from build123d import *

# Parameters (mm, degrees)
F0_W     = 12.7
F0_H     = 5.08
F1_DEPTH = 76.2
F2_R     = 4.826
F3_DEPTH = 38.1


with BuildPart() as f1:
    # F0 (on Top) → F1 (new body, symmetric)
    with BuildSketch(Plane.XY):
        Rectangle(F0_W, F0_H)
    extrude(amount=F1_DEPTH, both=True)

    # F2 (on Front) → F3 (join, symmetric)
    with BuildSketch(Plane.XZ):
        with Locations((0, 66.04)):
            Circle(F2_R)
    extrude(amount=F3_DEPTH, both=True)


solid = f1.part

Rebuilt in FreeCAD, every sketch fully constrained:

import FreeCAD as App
import Part
import Sketcher
Q = App.Units.Quantity

doc = App.newDocument("Part")
body = doc.addObject("PartDesign::Body", "Body")

# Sketch on XY plane
sketch1 = doc.addObject("Sketcher::SketchObject", "Sketch")
body.addObject(sketch1)
sketch1.AttachmentSupport = (doc.XY_Plane, [""])
sketch1.MapMode = "FlatFace"
sketch1.addGeometry(Part.LineSegment(App.Vector(-6.35, 2.54, 0), App.Vector(-6.35, -2.54, 0)), False)
sketch1.addGeometry(Part.LineSegment(App.Vector(-6.35, -2.54, 0), App.Vector(6.35, -2.54, 0)), False)
sketch1.addGeometry(Part.LineSegment(App.Vector(6.35, -2.54, 0), App.Vector(6.35, 2.54, 0)), False)
sketch1.addGeometry(Part.LineSegment(App.Vector(6.35, 2.54, 0), App.Vector(-6.35, 2.54, 0)), False)
sketch1.addConstraint(Sketcher.Constraint("Coincident", 0, 2, 1, 1))
sketch1.addConstraint(Sketcher.Constraint("Coincident", 1, 2, 2, 1))
sketch1.addConstraint(Sketcher.Constraint("Coincident", 2, 2, 3, 1))
sketch1.addConstraint(Sketcher.Constraint("Coincident", 3, 2, 0, 1))
sketch1.addConstraint(Sketcher.Constraint("Vertical", 0))
sketch1.addConstraint(Sketcher.Constraint("Horizontal", 1))
sketch1.addConstraint(Sketcher.Constraint("Vertical", 2))
sketch1.addConstraint(Sketcher.Constraint("Horizontal", 3))
sketch1.addConstraint(Sketcher.Constraint("Symmetric", 0, 2, 2, 2, -1, 1))
sketch1.addConstraint(Sketcher.Constraint("DistanceX", 1, 1, 1, 2, Q("0.5 in")))
sketch1.addConstraint(Sketcher.Constraint("DistanceY", 0, 2, 0, 1, Q("0.2 in")))
pad1 = doc.addObject("PartDesign::Pad", "Pad")
body.addObject(pad1)
pad1.Profile = sketch1
pad1.Length = Q("6 in")
pad1.Midplane = True

# Sketch on XZ plane
sketch2 = doc.addObject("Sketcher::SketchObject", "Sketch001")
body.addObject(sketch2)
sketch2.AttachmentSupport = (doc.XZ_Plane, [""])
sketch2.MapMode = "FlatFace"
sketch2.addGeometry(Part.Circle(App.Vector(0, 66.04, 0), App.Vector(0, 0, 1), 4.826), False)
sketch2.addConstraint(Sketcher.Constraint("PointOnObject", 0, 3, -2))
sketch2.addConstraint(Sketcher.Constraint("Diameter", 0, Q("0.38 in")))
sketch2.addConstraint(Sketcher.Constraint("DistanceY", -1, 1, 0, 3, Q("2.6 in")))
pad2 = doc.addObject("PartDesign::Pad", "Pad001")
body.addObject(pad2)
pad2.Profile = sketch2
pad2.Length = Q("3 in")
pad2.Midplane = True

doc.recompute()
